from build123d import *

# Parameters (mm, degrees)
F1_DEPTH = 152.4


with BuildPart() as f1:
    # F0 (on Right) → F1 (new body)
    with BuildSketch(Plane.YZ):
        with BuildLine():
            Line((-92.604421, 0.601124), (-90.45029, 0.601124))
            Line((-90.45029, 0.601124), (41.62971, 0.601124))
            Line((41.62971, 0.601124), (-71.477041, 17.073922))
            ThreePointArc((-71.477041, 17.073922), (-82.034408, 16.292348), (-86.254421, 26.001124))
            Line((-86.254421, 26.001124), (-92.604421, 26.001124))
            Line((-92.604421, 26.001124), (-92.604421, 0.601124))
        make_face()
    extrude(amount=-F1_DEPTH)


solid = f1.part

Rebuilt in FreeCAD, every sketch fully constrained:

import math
import FreeCAD as App
import Part
import Sketcher
from FreeCAD import Vector
Q = App.Units.Quantity

doc = App.newDocument("Part")
body = doc.addObject("PartDesign::Body", "Body")

# Sketch on YZ plane
sketch1 = body.newObject("Sketcher::SketchObject", "Sketch")
sketch1.AttachmentSupport = (doc.getObject("YZ_Plane"), [""])
sketch1.MapMode = "FlatFace"
sketch1.addGeometry([
    Part.LineSegment(Vector(-93, 1, 0), Vector(42, 1, 0)),  # 0
    Part.LineSegment(Vector(42, 1, 0), Vector(-71, 17, 0)),  # 1
    Part.ArcOfCircle(Part.Circle(Vector(-77, 24, 0), Vector(0, 0, 1), 9), math.radians(168), math.radians(310)),  # 2
    Part.LineSegment(Vector(-86, 26, 0), Vector(-93, 26, 0)),  # 3
    Part.LineSegment(Vector(-93, 26, 0), Vector(-93, 1, 0)),  # 4
], False)
sketch1.addConstraint([
    Sketcher.Constraint("Coincident", 0, 2, 1, 1),
    Sketcher.Constraint("Coincident", 1, 2, 2, 2),
    Sketcher.Constraint("Coincident", 2, 1, 3, 1),
    Sketcher.Constraint("Coincident", 3, 2, 4, 1),
    Sketcher.Constraint("Coincident", 4, 2, 0, 1),
    Sketcher.Constraint("Horizontal", 0),
    Sketcher.Constraint("Horizontal", 3),
    Sketcher.Constraint("Vertical", 4),
    Sketcher.Constraint("DistanceY", 4, 2, 4, 1, Q("1 in")),
    Sketcher.Constraint("Radius", 2, Q("0.36 in")),
    Sketcher.Constraint("Distance", 1, Q("4.5 in")),
    Sketcher.Constraint("DistanceX", 3, 2, 3, 1, Q("0.25 in")),
    Sketcher.Constraint("DistanceX", 0, 1, 0, 2, Q("134.234131 mm")),
    Sketcher.Constraint("DistanceY", 0, 2, 1, 2, Q("16.472798 mm")),
    Sketcher.Constraint("DistanceX", -1, 1, 0, 2, Q("41.62971 mm")),
    Sketcher.Constraint("DistanceY", -1, 1, 1, 2, Q("17.073922 mm")),
])
pad1 = body.newObject("PartDesign::Pad", "Pad")
pad1.Profile = sketch1
pad1.Length = Q("6 in")
pad1.Reversed = True

doc.recompute()
